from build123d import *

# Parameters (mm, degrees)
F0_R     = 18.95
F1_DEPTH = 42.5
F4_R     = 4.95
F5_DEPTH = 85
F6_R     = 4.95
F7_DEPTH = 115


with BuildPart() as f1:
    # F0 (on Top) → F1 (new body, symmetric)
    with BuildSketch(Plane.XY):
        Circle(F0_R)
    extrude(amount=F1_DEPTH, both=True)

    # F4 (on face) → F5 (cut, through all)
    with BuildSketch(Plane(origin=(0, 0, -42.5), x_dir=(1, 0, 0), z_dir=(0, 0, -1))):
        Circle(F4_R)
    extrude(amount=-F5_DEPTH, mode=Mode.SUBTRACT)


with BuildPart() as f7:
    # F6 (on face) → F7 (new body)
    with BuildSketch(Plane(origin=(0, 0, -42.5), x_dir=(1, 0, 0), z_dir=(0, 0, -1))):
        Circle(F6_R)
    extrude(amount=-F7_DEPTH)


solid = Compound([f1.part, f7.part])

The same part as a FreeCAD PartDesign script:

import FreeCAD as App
import Part
import Sketcher

V = App.Vector
Q = App.Units.Quantity

doc = App.newDocument("Part")
params = doc.addObject("Spreadsheet::Sheet", "Params")
for row, (alias, value) in enumerate([
    ("sketch1_diameter", "37.9 mm"),
    ("pad1_length", "85 mm"),
    ("sketch2_diameter", "9.9 mm"),
    ("sketch3_diameter", "9.9 mm"),
    ("pad2_length", "115 mm"),
], start=1):
    params.set(f"A{row}", alias)
    params.set(f"B{row}", "=" + value)
    params.setAlias(f"B{row}", alias)

body = doc.addObject("PartDesign::Body", "Body")

sketch1 = doc.addObject("Sketcher::SketchObject", "Sketch")
body.addObject(sketch1)
sketch1.AttachmentSupport = (doc.XY_Plane, [""])
sketch1.MapMode = "FlatFace"
sketch1.addGeometry(Part.Circle(V(0, 0, 0), V(0, 0, 1), 19), False)
sketch1.addConstraint(Sketcher.Constraint("Coincident", 0, 3, -1, 1))
sketch1.addConstraint(Sketcher.Constraint("Diameter", 0, Q("37.9 mm")))
sketch1.setExpression("Constraints[1]", "Params.sketch1_diameter")
pad1 = doc.addObject("PartDesign::Pad", "Pad")
body.addObject(pad1)
pad1.Profile = sketch1
pad1.setExpression("Length", "Params.pad1_length")
pad1.Midplane = True

sketch2 = doc.addObject("Sketcher::SketchObject", "Sketch001")
body.addObject(sketch2)
sketch2.AttachmentSupport = (doc.XY_Plane, [""])
sketch2.MapMode = "FlatFace"
sketch2.AttachmentOffset = App.Placement(V(0, 0, -42.5), App.Rotation())
sketch2.addGeometry(Part.Circle(V(0, 0, 0), V(0, 0, 1), 5), False)
sketch2.addConstraint(Sketcher.Constraint("Coincident", 0, 3, -1, 1))
sketch2.addConstraint(Sketcher.Constraint("Diameter", 0, Q("9.9 mm")))
sketch2.setExpression("Constraints[1]", "Params.sketch2_diameter")
pocket1 = doc.addObject("PartDesign::Pocket", "Pocket")
body.addObject(pocket1)
pocket1.Profile = sketch2
pocket1.Type = "ThroughAll"
pocket1.Reversed = True
body2 = doc.addObject("PartDesign::Body", "Body001")

sketch3 = doc.addObject("Sketcher::SketchObject", "Sketch002")
body2.addObject(sketch3)
sketch3.AttachmentSupport = (doc.getObject("XY_Plane001"), [""])
sketch3.MapMode = "FlatFace"
sketch3.AttachmentOffset = App.Placement(V(0, 0, -42.5), App.Rotation())
sketch3.addGeometry(Part.Circle(V(0, 0, 0), V(0, 0, 1), 5), False)
sketch3.addConstraint(Sketcher.Constraint("Coincident", 0, 3, -1, 1))
sketch3.addConstraint(Sketcher.Constraint("Diameter", 0, Q("9.9 mm")))
sketch3.setExpression("Constraints[1]", "Params.sketch3_diameter")
pad2 = doc.addObject("PartDesign::Pad", "Pad001")
body2.addObject(pad2)
pad2.Profile = sketch3
pad2.setExpression("Length", "Params.pad2_length")

doc.recompute()
